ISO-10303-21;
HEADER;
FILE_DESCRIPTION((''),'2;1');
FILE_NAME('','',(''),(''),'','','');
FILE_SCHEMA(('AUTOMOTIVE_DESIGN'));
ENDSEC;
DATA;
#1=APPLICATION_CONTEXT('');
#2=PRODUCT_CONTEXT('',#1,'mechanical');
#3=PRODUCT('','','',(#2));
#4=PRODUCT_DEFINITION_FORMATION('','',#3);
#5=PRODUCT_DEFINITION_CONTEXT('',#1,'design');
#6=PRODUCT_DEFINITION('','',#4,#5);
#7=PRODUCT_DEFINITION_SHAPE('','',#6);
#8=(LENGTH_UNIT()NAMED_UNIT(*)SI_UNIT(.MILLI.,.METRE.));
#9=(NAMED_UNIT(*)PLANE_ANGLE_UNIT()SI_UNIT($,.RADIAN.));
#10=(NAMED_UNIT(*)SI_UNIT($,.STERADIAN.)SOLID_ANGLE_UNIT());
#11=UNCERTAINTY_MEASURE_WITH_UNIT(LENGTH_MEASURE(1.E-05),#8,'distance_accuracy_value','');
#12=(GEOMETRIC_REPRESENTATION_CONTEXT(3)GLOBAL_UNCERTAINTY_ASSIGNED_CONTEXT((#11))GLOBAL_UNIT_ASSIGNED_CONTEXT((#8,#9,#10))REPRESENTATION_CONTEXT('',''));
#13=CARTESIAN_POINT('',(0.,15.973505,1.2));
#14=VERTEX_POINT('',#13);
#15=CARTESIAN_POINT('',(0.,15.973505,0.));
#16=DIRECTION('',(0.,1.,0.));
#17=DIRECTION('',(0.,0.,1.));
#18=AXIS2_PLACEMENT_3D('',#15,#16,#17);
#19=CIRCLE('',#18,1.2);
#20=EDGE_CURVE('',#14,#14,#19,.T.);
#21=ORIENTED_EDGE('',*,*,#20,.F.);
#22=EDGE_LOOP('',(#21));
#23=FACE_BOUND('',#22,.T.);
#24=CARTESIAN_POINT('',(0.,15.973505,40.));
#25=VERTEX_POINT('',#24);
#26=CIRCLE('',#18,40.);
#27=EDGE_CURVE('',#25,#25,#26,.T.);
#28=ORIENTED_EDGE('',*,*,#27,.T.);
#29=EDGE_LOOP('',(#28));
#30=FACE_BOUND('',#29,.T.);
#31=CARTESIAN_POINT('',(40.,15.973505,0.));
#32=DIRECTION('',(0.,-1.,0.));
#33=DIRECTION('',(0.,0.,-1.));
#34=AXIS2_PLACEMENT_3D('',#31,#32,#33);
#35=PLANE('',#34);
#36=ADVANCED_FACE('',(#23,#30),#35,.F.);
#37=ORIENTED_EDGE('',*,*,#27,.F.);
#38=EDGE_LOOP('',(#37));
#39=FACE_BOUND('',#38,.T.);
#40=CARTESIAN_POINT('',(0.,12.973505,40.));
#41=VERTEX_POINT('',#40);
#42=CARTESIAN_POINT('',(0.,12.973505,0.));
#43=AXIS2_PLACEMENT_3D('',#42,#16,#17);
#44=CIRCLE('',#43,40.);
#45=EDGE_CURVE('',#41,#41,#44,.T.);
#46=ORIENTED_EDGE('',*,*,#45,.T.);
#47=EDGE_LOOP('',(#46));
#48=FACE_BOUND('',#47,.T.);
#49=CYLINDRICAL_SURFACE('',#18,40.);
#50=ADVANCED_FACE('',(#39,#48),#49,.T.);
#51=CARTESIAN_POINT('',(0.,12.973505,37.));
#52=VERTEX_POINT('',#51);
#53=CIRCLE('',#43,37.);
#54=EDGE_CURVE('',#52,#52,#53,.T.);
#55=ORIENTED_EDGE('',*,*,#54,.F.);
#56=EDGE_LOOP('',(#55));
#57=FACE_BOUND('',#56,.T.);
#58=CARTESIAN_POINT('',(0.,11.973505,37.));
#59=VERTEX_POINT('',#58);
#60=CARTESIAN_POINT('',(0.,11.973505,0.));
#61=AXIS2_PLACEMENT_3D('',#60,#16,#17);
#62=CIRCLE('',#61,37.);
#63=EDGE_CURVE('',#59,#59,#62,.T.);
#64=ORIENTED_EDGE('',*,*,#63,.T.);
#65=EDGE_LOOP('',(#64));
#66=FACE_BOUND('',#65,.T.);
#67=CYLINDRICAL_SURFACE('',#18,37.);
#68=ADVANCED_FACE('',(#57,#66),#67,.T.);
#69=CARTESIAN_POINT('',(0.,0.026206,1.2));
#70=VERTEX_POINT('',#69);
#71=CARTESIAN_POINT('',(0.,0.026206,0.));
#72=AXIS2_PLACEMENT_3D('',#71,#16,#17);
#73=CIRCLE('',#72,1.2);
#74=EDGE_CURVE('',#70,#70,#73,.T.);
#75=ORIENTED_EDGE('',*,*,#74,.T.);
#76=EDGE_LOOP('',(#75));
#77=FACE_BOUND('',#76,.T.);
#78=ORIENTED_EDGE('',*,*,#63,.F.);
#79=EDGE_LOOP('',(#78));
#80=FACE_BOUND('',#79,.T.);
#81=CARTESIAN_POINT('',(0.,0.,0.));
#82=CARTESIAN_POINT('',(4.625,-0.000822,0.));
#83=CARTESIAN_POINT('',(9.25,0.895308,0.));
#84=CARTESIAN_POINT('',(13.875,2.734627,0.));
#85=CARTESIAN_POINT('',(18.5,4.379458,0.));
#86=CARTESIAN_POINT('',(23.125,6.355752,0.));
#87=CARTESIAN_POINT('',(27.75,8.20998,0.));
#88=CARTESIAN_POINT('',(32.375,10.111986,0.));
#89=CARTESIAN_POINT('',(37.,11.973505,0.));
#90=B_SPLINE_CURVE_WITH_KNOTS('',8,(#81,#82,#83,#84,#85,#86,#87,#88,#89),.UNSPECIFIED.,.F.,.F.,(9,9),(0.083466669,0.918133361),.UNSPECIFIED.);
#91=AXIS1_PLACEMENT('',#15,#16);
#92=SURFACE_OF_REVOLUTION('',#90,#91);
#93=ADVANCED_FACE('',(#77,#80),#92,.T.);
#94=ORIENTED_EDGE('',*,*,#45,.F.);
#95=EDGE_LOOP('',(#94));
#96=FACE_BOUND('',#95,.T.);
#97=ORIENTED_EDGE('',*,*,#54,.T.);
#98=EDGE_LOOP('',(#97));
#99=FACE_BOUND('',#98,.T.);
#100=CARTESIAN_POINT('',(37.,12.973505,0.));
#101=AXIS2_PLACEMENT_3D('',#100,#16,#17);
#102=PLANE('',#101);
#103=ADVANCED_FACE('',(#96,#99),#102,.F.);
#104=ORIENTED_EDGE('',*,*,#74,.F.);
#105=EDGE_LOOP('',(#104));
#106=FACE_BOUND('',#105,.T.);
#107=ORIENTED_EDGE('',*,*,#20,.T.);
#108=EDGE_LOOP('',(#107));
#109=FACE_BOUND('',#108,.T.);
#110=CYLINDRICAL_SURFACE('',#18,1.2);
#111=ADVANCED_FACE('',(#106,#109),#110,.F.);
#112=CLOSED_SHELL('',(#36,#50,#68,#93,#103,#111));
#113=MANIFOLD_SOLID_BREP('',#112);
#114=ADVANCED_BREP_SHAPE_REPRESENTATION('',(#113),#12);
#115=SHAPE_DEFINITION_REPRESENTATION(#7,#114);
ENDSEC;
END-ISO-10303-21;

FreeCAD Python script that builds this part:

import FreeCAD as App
import Part
import Sketcher
Q = App.Units.Quantity

doc = App.newDocument("Part")
body = doc.addObject("PartDesign::Body", "Body")

# Sketch on XY plane
sketch1 = body.newObject("Sketcher::SketchObject", "Sketch")
sketch1.AttachmentSupport = (doc.getObject("XY_Plane"), [""])
sketch1.MapMode = "FlatFace"
sketch1.addGeometry([
    Part.LineSegment(App.Vector(1.2, 15.973505, 0), App.Vector(1.2, 10.973505, 0)),  # 0
    Part.LineSegment(App.Vector(1.2, 10.973505, 0), App.Vector(0, 10.973505, 0)),  # 1
    Part.LineSegment(App.Vector(0, 10.973505, 0), App.Vector(0, 0, 0)),  # 2
    Part.BSplineCurve([App.Vector(0, 0, 0), App.Vector(4.625, -0.000822, 0), App.Vector(9.25, 0.895308, 0), App.Vector(13.875, 2.734627, 0), App.Vector(18.5, 4.379458, 0), App.Vector(23.125, 6.355752, 0), App.Vector(27.75, 8.20998, 0), App.Vector(32.375, 10.111986, 0), App.Vector(37, 11.973505, 0)], [9, 9], [0.083466669, 0.918133361], False, 8, [1, 1, 1, 1, 1, 1, 1, 1, 1], False),  # 3
    Part.LineSegment(App.Vector(37, 11.973505, 0), App.Vector(37, 12.973505, 0)),  # 4
    Part.LineSegment(App.Vector(37, 12.973505, 0), App.Vector(40, 12.973505, 0)),  # 5
    Part.LineSegment(App.Vector(40, 12.973505, 0), App.Vector(40, 15.973505, 0)),  # 6
    Part.LineSegment(App.Vector(40, 15.973505, 0), App.Vector(1.2, 15.973505, 0)),  # 7
], False)
sketch1.addConstraint([
    Sketcher.Constraint("Block", 3),
    Sketcher.Constraint("Coincident", 0, 2, 1, 1),
    Sketcher.Constraint("Coincident", 1, 2, 2, 1),
    Sketcher.Constraint("Coincident", 2, 2, 3, 1),
    Sketcher.Constraint("Coincident", 3, 2, 4, 1),
    Sketcher.Constraint("Coincident", 4, 2, 5, 1),
    Sketcher.Constraint("Coincident", 5, 2, 6, 1),
    Sketcher.Constraint("Coincident", 6, 2, 7, 1),
    Sketcher.Constraint("Coincident", 7, 2, 0, 1),
    Sketcher.Constraint("Vertical", 0),
    Sketcher.Constraint("Horizontal", 1),
    Sketcher.Constraint("Vertical", 2),
    Sketcher.Constraint("Vertical", 4),
    Sketcher.Constraint("Horizontal", 5),
    Sketcher.Constraint("Vertical", 6),
    Sketcher.Constraint("Horizontal", 7),
    Sketcher.Constraint("Equal", 5, 6),
    Sketcher.Constraint("DistanceX", 5, 1, 5, 2, Q("3 mm")),
    Sketcher.Constraint("DistanceY", 0, 2, 0, 1, Q("5 mm")),
    Sketcher.Constraint("DistanceY", 4, 1, 4, 2, Q("1 mm")),
    Sketcher.Constraint("DistanceX", 1, 2, 1, 1, Q("1.2 mm")),
])
revolution = body.newObject("PartDesign::Revolution", "Revolution")
revolution.Profile = sketch1
revolution.ReferenceAxis = (sketch1, ["V_Axis"])
revolution.Angle = 360

# Sketch on XZ plane
sketch2 = body.newObject("Sketcher::SketchObject", "Sketch001")
sketch2.AttachmentSupport = (doc.getObject("XZ_Plane"), [""])
sketch2.MapMode = "FlatFace"
sketch2.AttachmentOffset = App.Placement(App.Vector(0, 0, -15.973505), App.Rotation())
sketch2.addGeometry(Part.Circle(App.Vector(0, 0, 0), App.Vector(0, 0, 1), 1.2), False)
sketch2.addConstraint([
    Sketcher.Constraint("Coincident", 0, 3, -1, 1),
    Sketcher.Constraint("Diameter", 0, Q("2.4 mm")),
])
pocket1 = body.newObject("PartDesign::Pocket", "Pocket")
pocket1.Profile = sketch2
pocket1.Type = "ThroughAll"
pocket1.Reversed = True

doc.recompute()
